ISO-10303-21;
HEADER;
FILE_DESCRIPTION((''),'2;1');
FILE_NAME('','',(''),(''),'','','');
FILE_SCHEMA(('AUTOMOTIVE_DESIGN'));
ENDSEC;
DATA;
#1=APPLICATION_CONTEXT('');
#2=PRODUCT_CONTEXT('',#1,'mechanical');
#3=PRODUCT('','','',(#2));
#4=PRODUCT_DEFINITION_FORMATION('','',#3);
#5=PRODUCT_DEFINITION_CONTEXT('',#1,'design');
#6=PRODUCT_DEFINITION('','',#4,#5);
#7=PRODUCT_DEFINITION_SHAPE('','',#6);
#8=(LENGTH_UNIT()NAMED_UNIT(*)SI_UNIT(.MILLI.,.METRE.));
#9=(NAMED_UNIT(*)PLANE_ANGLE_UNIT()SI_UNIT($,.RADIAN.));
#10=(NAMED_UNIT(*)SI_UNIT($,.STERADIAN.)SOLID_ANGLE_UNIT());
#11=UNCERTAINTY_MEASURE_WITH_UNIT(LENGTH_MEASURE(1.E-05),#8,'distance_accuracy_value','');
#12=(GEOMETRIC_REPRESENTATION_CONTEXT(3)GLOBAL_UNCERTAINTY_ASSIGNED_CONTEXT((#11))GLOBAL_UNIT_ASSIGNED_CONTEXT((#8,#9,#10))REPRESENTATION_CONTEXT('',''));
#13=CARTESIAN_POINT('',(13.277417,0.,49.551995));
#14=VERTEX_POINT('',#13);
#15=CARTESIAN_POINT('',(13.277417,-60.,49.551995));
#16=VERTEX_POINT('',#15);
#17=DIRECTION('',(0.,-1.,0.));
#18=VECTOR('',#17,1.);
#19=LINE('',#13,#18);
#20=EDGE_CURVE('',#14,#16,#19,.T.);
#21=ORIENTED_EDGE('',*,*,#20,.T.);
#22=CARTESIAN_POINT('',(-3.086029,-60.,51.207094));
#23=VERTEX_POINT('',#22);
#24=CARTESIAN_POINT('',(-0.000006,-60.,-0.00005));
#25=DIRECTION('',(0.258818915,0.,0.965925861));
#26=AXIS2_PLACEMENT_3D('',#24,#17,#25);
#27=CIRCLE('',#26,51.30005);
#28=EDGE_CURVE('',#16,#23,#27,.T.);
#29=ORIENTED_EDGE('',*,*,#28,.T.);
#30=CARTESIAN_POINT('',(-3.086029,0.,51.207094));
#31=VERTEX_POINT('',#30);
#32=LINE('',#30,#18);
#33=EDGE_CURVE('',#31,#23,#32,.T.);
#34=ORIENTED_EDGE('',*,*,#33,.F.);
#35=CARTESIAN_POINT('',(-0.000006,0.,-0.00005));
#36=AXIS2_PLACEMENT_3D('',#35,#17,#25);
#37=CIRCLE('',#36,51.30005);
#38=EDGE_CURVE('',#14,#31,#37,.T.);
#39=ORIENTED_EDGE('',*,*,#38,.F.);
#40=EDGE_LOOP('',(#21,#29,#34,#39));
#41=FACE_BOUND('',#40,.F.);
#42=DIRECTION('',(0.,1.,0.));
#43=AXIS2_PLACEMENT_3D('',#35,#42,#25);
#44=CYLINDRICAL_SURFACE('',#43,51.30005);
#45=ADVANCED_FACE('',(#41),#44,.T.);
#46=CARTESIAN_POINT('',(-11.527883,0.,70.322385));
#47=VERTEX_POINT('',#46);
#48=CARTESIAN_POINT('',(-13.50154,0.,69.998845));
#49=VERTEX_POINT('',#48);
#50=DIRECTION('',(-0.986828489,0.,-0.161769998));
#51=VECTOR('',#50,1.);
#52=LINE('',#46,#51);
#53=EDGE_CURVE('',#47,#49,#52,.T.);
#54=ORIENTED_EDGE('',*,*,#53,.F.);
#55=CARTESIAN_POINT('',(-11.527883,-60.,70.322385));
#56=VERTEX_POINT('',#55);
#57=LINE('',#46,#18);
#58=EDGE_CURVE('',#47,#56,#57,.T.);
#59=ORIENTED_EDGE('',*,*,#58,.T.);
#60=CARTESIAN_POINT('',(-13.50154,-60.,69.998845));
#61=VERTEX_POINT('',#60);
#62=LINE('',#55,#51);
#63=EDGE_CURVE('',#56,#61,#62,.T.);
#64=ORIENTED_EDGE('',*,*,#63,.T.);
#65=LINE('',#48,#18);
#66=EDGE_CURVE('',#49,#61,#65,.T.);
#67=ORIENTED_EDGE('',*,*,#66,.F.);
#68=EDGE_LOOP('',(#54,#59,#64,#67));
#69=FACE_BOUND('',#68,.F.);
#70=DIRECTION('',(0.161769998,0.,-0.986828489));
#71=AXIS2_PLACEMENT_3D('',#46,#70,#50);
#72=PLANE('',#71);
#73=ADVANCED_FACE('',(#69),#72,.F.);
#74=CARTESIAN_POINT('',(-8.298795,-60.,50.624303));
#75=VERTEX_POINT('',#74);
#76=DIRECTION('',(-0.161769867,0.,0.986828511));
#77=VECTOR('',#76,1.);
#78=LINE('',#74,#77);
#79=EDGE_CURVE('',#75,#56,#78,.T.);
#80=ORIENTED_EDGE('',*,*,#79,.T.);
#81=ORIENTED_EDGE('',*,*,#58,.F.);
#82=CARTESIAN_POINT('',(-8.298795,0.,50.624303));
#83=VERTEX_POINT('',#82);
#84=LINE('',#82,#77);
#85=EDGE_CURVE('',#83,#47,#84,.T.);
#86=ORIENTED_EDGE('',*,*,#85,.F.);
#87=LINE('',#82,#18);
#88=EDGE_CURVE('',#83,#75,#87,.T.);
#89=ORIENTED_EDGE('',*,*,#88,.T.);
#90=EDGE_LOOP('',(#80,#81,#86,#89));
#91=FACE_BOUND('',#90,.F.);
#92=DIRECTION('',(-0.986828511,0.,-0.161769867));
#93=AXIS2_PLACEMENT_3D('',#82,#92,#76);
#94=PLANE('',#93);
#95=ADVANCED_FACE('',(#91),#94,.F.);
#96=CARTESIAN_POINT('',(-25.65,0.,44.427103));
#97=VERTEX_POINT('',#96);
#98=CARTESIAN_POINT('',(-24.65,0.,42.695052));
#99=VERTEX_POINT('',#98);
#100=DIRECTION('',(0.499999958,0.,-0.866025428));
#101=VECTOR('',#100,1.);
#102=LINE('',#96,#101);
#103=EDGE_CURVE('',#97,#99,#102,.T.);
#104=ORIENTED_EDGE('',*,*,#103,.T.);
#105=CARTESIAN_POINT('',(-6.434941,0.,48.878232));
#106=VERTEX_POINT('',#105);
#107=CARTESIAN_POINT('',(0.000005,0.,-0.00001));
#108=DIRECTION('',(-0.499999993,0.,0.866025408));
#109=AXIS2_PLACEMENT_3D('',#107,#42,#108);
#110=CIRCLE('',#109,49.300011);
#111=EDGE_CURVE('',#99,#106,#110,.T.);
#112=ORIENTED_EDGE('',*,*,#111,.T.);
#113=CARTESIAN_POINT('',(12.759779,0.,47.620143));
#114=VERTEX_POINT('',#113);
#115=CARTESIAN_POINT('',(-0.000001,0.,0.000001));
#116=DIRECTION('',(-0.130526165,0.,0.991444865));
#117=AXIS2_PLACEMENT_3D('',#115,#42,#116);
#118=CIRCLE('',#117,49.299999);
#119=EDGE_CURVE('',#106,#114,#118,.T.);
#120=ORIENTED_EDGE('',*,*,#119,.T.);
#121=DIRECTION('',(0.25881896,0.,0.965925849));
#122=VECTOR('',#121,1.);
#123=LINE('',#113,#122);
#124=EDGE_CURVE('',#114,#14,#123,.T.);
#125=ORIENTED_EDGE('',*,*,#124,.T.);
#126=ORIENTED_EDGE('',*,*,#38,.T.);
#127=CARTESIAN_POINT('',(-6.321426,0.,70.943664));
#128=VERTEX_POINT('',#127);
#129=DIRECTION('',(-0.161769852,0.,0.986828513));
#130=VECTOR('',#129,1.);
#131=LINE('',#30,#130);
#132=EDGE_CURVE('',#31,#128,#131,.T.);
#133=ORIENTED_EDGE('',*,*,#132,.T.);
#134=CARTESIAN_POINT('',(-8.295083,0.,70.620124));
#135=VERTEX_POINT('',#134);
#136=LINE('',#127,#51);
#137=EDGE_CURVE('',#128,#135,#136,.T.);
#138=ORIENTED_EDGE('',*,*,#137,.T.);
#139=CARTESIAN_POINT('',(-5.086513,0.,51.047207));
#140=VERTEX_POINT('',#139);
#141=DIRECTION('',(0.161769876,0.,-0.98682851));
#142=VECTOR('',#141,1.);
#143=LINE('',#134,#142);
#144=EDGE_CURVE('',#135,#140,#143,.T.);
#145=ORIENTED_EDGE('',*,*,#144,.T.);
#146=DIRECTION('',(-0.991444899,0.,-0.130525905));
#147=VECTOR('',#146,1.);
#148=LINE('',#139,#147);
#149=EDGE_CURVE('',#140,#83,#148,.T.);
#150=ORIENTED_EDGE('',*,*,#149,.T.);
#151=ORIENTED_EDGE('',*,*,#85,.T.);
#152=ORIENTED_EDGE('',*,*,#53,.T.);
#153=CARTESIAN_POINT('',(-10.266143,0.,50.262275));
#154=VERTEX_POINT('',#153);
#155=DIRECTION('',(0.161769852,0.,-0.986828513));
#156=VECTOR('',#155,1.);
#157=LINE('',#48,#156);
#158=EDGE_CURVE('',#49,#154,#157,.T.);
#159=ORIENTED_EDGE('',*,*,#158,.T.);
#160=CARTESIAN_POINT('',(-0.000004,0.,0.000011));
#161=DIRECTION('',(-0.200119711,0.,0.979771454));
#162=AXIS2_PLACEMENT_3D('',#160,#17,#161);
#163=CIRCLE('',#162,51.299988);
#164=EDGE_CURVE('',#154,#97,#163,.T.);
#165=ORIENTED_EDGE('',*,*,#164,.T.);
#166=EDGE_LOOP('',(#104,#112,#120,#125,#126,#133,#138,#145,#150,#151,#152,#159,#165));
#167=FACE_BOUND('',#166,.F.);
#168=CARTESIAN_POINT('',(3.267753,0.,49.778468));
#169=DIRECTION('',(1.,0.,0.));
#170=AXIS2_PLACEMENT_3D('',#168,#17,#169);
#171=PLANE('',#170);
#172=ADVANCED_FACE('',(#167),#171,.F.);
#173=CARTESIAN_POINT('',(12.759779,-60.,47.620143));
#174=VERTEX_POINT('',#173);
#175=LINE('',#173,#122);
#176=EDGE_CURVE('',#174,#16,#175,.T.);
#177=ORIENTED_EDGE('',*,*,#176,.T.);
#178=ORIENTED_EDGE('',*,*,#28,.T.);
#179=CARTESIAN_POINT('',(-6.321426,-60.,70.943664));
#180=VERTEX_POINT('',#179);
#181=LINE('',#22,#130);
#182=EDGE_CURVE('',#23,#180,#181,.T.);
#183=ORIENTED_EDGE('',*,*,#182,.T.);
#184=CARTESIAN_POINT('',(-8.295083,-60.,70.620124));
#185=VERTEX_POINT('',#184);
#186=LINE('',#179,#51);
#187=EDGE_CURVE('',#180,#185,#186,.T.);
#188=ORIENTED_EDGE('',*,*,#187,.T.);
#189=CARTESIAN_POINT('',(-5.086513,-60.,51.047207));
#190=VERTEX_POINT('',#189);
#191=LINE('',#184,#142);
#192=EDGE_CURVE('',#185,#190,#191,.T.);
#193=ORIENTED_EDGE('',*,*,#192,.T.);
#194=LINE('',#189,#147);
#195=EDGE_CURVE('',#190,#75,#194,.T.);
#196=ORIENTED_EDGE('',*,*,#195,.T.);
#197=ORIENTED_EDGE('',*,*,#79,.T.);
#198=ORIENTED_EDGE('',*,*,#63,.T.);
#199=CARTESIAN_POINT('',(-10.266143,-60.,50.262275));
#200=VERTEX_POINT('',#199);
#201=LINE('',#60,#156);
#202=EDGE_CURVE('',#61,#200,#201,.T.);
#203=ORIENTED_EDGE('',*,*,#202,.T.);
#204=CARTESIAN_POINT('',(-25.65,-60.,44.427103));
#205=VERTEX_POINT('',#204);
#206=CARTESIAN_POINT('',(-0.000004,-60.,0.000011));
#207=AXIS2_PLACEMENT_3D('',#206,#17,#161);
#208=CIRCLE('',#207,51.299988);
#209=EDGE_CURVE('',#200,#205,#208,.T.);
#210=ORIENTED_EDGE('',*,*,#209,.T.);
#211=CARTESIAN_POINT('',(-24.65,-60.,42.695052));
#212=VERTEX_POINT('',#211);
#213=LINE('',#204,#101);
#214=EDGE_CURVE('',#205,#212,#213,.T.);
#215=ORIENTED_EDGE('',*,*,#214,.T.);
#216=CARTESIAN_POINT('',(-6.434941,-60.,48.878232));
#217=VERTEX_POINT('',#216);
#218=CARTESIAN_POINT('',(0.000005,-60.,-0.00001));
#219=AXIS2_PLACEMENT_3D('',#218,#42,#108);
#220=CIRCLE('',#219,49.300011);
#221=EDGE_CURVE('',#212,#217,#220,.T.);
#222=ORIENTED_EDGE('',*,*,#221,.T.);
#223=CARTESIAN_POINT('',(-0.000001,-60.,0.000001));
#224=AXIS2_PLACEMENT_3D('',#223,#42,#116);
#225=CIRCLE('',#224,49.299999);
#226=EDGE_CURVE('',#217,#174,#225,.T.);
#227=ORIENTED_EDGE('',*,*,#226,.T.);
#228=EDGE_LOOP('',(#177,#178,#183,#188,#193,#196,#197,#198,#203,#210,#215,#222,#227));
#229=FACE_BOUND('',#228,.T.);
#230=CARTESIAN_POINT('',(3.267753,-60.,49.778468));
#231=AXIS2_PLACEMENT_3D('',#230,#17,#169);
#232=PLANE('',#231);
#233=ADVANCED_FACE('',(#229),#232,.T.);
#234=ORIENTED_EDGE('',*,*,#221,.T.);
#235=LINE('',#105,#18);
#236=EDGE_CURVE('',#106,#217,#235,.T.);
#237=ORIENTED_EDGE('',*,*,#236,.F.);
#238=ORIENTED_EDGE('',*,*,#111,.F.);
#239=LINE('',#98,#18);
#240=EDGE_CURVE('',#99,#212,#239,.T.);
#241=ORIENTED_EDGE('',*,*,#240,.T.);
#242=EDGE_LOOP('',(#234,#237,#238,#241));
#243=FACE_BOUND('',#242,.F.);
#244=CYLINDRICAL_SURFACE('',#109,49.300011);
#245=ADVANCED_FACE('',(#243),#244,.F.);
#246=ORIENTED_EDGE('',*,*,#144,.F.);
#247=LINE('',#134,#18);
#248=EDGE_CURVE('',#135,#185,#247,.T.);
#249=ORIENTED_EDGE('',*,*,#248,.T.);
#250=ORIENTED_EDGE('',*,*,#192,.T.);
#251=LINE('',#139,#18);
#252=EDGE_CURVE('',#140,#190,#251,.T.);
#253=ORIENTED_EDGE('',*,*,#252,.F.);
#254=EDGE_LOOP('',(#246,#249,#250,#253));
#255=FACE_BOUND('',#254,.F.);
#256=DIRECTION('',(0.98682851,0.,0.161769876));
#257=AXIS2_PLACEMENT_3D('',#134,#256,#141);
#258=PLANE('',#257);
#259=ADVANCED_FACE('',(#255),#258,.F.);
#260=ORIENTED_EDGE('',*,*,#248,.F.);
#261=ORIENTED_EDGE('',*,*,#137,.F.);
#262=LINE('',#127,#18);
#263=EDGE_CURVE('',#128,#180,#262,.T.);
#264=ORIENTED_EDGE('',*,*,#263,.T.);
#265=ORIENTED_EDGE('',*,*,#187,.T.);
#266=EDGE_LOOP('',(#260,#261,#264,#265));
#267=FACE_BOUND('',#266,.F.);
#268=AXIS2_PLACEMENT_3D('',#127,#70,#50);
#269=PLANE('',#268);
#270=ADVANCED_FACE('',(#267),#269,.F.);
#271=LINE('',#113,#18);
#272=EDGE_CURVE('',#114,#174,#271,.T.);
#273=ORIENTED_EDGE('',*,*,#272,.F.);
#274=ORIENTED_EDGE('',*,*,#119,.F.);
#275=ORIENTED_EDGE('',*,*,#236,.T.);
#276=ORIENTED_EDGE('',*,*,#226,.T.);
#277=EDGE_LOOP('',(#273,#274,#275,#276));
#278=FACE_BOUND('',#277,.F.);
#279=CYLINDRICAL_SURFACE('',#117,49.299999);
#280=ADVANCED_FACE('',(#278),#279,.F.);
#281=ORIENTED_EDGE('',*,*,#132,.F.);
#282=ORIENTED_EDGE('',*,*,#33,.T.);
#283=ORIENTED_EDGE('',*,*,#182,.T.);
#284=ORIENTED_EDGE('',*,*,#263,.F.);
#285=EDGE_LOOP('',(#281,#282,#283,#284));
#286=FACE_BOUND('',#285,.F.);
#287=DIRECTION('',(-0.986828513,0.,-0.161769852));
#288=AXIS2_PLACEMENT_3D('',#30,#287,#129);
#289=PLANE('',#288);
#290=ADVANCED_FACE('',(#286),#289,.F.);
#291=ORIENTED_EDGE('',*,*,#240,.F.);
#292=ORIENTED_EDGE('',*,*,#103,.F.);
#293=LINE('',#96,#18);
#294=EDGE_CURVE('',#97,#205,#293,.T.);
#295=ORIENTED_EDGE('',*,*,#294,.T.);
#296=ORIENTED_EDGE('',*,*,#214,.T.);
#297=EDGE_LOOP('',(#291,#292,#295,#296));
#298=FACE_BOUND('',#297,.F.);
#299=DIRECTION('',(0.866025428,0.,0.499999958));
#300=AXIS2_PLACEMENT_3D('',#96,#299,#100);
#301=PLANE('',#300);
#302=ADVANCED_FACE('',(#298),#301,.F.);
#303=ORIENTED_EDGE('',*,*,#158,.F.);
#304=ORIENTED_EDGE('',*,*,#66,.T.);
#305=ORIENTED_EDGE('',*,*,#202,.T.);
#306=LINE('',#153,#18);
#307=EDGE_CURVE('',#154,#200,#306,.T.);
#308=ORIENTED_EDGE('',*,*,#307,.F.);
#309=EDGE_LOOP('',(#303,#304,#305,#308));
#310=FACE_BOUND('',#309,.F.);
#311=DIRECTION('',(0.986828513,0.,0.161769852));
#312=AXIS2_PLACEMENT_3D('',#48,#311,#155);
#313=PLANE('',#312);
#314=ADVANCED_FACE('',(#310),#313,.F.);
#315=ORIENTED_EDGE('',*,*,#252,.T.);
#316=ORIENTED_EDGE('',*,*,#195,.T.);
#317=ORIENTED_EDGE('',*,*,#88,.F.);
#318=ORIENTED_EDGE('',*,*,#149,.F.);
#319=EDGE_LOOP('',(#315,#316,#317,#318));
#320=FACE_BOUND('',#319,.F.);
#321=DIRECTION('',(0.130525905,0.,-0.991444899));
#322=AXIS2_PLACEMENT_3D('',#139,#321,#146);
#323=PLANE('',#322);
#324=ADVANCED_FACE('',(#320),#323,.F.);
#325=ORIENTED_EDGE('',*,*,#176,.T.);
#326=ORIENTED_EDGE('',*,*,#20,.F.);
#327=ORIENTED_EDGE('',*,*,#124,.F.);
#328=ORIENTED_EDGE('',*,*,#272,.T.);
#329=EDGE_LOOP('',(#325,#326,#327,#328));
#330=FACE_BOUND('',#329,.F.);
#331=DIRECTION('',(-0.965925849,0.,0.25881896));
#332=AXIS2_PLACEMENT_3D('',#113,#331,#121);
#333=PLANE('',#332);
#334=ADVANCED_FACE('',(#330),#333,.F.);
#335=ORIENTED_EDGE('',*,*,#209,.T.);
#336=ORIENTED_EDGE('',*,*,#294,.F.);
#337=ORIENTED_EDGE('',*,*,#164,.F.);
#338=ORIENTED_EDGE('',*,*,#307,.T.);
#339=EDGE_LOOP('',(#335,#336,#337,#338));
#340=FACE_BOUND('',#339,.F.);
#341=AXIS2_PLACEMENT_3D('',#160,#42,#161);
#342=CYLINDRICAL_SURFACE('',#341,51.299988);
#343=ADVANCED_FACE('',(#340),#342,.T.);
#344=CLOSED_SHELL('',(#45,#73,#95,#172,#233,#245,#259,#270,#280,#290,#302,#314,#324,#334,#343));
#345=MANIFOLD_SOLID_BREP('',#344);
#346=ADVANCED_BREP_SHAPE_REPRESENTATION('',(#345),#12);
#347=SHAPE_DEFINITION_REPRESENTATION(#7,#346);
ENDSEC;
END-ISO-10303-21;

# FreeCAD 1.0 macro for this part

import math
import FreeCAD as App
import Part
import Sketcher
from FreeCAD import Vector
Q = App.Units.Quantity

doc = App.newDocument("Part")
body = doc.addObject("PartDesign::Body", "Body")

# Sketch on XZ plane
sketch1 = body.newObject("Sketcher::SketchObject", "Sketch")
sketch1.AttachmentSupport = (doc.getObject("XZ_Plane"), [""])
sketch1.MapMode = "FlatFace"
sketch1.addGeometry([
    Part.ArcOfCircle(Part.Circle(Vector(-0.000001, 0.000001, 0), Vector(0, 0, 1), 49.299999), math.radians(74.999998), math.radians(97.499998)),  # 0
    Part.LineSegment(Vector(12.759779, 47.620143, 0), Vector(13.277417, 49.551995, 0)),  # 1
    Part.ArcOfCircle(Part.Circle(Vector(-0.000006, -0.00005, 0), Vector(0, 0, 1), 51.30005), math.radians(75.000008), math.radians(93.448786)),  # 2
    Part.LineSegment(Vector(-3.086029, 51.207094, 0), Vector(-6.321426, 70.943664, 0)),  # 3
    Part.LineSegment(Vector(-6.321426, 70.943664, 0), Vector(-8.295083, 70.620124, 0)),  # 4
    Part.LineSegment(Vector(-8.295083, 70.620124, 0), Vector(-5.086513, 51.047207, 0)),  # 5
    Part.LineSegment(Vector(-5.086513, 51.047207, 0), Vector(-8.298795, 50.624303, 0)),  # 6
    Part.LineSegment(Vector(-8.298795, 50.624303, 0), Vector(-11.527883, 70.322385, 0)),  # 7
    Part.LineSegment(Vector(-11.527883, 70.322385, 0), Vector(-13.50154, 69.998845, 0)),  # 8
    Part.LineSegment(Vector(-13.50154, 69.998845, 0), Vector(-10.266143, 50.262275, 0)),  # 9
    Part.ArcOfCircle(Part.Circle(Vector(-0.000004, 0.000011, 0), Vector(0, 0, 1), 51.299988), math.radians(101.54396), math.radians(120.000002)),  # 10
    Part.LineSegment(Vector(-25.65, 44.427103, 0), Vector(-24.65, 42.695052, 0)),  # 11
    Part.ArcOfCircle(Part.Circle(Vector(0.000005, -0.00001, 0), Vector(0, 0, 1), 49.300011), math.radians(97.500004), math.radians(120)),  # 12
], False)
sketch1.addConstraint([
    Sketcher.Constraint("Coincident", 0, 1, 1, 1),
    Sketcher.Constraint("Coincident", 1, 2, 2, 1),
    Sketcher.Constraint("Coincident", 2, 2, 3, 1),
    Sketcher.Constraint("Coincident", 3, 2, 4, 1),
    Sketcher.Constraint("Coincident", 4, 2, 5, 1),
    Sketcher.Constraint("Coincident", 5, 2, 6, 1),
    Sketcher.Constraint("Coincident", 6, 2, 7, 1),
    Sketcher.Constraint("Coincident", 7, 2, 8, 1),
    Sketcher.Constraint("Coincident", 8, 2, 9, 1),
    Sketcher.Constraint("Coincident", 9, 2, 10, 1),
    Sketcher.Constraint("Coincident", 10, 2, 11, 1),
    Sketcher.Constraint("Coincident", 11, 2, 12, 2),
    Sketcher.Constraint("Tangent", 12, 1, 0, 2),
    Sketcher.Constraint("Coincident", 0, 3, -1, 1),
    Sketcher.Constraint("Symmetric", 10, 3, 12, 3, -1),
    Sketcher.Constraint("Perpendicular", 3, 4),
    Sketcher.Constraint("Perpendicular", 4, 5),
    Sketcher.Constraint("Parallel", 5, 7),
    Sketcher.Constraint("Perpendicular", 7, 8),
    Sketcher.Constraint("Perpendicular", 8, 9),
    Sketcher.Constraint("Equal", 1, 4),
    Sketcher.Constraint("Equal", 4, 8),
    Sketcher.Constraint("Equal", 3, 9),
    Sketcher.Constraint("Equal", 8, 11),
    Sketcher.Constraint("Radius", 0, Q("49.299999 mm")),
    Sketcher.Constraint("Angle", 1, Q("75.000005 deg")),
    Sketcher.Constraint("Angle", 11, Q("-60.000003 deg")),
    Sketcher.Constraint("Distance", 1, Q("2 mm")),
    Sketcher.Constraint("Distance", 3, Q("20 mm")),
    Sketcher.Constraint("Angle", 6, Q("-172.500017 deg")),
    Sketcher.Constraint("Distance", 6, Q("3.240001 mm")),
    Sketcher.Constraint("DistanceX", 10, 2, -1, 1, Q("25.65 mm")),
    Sketcher.Constraint("Radius", 2, Q("51.30005 mm")),
    Sketcher.Constraint("Radius", 10, Q("51.299988 mm")),
    Sketcher.Constraint("Distance", 7, Q("19.960998 mm")),
    Sketcher.Constraint("DistanceY", 1, 2, 2, 2, Q("1.655099 mm")),
    Sketcher.Constraint("DistanceX", 4, 2, 1, 2, Q("21.5725 mm")),
    Sketcher.Constraint("DistanceX", 7, 2, 4, 2, Q("3.2328 mm")),
    Sketcher.Constraint("DistanceX", 9, 2, 12, 1, Q("3.831202 mm")),
    Sketcher.Constraint("DistanceX", -1, 1, 0, 1, Q("12.759779 mm")),
])
pad1 = body.newObject("PartDesign::Pad", "Pad")
pad1.Profile = sketch1
pad1.Length = 60

doc.recompute()
